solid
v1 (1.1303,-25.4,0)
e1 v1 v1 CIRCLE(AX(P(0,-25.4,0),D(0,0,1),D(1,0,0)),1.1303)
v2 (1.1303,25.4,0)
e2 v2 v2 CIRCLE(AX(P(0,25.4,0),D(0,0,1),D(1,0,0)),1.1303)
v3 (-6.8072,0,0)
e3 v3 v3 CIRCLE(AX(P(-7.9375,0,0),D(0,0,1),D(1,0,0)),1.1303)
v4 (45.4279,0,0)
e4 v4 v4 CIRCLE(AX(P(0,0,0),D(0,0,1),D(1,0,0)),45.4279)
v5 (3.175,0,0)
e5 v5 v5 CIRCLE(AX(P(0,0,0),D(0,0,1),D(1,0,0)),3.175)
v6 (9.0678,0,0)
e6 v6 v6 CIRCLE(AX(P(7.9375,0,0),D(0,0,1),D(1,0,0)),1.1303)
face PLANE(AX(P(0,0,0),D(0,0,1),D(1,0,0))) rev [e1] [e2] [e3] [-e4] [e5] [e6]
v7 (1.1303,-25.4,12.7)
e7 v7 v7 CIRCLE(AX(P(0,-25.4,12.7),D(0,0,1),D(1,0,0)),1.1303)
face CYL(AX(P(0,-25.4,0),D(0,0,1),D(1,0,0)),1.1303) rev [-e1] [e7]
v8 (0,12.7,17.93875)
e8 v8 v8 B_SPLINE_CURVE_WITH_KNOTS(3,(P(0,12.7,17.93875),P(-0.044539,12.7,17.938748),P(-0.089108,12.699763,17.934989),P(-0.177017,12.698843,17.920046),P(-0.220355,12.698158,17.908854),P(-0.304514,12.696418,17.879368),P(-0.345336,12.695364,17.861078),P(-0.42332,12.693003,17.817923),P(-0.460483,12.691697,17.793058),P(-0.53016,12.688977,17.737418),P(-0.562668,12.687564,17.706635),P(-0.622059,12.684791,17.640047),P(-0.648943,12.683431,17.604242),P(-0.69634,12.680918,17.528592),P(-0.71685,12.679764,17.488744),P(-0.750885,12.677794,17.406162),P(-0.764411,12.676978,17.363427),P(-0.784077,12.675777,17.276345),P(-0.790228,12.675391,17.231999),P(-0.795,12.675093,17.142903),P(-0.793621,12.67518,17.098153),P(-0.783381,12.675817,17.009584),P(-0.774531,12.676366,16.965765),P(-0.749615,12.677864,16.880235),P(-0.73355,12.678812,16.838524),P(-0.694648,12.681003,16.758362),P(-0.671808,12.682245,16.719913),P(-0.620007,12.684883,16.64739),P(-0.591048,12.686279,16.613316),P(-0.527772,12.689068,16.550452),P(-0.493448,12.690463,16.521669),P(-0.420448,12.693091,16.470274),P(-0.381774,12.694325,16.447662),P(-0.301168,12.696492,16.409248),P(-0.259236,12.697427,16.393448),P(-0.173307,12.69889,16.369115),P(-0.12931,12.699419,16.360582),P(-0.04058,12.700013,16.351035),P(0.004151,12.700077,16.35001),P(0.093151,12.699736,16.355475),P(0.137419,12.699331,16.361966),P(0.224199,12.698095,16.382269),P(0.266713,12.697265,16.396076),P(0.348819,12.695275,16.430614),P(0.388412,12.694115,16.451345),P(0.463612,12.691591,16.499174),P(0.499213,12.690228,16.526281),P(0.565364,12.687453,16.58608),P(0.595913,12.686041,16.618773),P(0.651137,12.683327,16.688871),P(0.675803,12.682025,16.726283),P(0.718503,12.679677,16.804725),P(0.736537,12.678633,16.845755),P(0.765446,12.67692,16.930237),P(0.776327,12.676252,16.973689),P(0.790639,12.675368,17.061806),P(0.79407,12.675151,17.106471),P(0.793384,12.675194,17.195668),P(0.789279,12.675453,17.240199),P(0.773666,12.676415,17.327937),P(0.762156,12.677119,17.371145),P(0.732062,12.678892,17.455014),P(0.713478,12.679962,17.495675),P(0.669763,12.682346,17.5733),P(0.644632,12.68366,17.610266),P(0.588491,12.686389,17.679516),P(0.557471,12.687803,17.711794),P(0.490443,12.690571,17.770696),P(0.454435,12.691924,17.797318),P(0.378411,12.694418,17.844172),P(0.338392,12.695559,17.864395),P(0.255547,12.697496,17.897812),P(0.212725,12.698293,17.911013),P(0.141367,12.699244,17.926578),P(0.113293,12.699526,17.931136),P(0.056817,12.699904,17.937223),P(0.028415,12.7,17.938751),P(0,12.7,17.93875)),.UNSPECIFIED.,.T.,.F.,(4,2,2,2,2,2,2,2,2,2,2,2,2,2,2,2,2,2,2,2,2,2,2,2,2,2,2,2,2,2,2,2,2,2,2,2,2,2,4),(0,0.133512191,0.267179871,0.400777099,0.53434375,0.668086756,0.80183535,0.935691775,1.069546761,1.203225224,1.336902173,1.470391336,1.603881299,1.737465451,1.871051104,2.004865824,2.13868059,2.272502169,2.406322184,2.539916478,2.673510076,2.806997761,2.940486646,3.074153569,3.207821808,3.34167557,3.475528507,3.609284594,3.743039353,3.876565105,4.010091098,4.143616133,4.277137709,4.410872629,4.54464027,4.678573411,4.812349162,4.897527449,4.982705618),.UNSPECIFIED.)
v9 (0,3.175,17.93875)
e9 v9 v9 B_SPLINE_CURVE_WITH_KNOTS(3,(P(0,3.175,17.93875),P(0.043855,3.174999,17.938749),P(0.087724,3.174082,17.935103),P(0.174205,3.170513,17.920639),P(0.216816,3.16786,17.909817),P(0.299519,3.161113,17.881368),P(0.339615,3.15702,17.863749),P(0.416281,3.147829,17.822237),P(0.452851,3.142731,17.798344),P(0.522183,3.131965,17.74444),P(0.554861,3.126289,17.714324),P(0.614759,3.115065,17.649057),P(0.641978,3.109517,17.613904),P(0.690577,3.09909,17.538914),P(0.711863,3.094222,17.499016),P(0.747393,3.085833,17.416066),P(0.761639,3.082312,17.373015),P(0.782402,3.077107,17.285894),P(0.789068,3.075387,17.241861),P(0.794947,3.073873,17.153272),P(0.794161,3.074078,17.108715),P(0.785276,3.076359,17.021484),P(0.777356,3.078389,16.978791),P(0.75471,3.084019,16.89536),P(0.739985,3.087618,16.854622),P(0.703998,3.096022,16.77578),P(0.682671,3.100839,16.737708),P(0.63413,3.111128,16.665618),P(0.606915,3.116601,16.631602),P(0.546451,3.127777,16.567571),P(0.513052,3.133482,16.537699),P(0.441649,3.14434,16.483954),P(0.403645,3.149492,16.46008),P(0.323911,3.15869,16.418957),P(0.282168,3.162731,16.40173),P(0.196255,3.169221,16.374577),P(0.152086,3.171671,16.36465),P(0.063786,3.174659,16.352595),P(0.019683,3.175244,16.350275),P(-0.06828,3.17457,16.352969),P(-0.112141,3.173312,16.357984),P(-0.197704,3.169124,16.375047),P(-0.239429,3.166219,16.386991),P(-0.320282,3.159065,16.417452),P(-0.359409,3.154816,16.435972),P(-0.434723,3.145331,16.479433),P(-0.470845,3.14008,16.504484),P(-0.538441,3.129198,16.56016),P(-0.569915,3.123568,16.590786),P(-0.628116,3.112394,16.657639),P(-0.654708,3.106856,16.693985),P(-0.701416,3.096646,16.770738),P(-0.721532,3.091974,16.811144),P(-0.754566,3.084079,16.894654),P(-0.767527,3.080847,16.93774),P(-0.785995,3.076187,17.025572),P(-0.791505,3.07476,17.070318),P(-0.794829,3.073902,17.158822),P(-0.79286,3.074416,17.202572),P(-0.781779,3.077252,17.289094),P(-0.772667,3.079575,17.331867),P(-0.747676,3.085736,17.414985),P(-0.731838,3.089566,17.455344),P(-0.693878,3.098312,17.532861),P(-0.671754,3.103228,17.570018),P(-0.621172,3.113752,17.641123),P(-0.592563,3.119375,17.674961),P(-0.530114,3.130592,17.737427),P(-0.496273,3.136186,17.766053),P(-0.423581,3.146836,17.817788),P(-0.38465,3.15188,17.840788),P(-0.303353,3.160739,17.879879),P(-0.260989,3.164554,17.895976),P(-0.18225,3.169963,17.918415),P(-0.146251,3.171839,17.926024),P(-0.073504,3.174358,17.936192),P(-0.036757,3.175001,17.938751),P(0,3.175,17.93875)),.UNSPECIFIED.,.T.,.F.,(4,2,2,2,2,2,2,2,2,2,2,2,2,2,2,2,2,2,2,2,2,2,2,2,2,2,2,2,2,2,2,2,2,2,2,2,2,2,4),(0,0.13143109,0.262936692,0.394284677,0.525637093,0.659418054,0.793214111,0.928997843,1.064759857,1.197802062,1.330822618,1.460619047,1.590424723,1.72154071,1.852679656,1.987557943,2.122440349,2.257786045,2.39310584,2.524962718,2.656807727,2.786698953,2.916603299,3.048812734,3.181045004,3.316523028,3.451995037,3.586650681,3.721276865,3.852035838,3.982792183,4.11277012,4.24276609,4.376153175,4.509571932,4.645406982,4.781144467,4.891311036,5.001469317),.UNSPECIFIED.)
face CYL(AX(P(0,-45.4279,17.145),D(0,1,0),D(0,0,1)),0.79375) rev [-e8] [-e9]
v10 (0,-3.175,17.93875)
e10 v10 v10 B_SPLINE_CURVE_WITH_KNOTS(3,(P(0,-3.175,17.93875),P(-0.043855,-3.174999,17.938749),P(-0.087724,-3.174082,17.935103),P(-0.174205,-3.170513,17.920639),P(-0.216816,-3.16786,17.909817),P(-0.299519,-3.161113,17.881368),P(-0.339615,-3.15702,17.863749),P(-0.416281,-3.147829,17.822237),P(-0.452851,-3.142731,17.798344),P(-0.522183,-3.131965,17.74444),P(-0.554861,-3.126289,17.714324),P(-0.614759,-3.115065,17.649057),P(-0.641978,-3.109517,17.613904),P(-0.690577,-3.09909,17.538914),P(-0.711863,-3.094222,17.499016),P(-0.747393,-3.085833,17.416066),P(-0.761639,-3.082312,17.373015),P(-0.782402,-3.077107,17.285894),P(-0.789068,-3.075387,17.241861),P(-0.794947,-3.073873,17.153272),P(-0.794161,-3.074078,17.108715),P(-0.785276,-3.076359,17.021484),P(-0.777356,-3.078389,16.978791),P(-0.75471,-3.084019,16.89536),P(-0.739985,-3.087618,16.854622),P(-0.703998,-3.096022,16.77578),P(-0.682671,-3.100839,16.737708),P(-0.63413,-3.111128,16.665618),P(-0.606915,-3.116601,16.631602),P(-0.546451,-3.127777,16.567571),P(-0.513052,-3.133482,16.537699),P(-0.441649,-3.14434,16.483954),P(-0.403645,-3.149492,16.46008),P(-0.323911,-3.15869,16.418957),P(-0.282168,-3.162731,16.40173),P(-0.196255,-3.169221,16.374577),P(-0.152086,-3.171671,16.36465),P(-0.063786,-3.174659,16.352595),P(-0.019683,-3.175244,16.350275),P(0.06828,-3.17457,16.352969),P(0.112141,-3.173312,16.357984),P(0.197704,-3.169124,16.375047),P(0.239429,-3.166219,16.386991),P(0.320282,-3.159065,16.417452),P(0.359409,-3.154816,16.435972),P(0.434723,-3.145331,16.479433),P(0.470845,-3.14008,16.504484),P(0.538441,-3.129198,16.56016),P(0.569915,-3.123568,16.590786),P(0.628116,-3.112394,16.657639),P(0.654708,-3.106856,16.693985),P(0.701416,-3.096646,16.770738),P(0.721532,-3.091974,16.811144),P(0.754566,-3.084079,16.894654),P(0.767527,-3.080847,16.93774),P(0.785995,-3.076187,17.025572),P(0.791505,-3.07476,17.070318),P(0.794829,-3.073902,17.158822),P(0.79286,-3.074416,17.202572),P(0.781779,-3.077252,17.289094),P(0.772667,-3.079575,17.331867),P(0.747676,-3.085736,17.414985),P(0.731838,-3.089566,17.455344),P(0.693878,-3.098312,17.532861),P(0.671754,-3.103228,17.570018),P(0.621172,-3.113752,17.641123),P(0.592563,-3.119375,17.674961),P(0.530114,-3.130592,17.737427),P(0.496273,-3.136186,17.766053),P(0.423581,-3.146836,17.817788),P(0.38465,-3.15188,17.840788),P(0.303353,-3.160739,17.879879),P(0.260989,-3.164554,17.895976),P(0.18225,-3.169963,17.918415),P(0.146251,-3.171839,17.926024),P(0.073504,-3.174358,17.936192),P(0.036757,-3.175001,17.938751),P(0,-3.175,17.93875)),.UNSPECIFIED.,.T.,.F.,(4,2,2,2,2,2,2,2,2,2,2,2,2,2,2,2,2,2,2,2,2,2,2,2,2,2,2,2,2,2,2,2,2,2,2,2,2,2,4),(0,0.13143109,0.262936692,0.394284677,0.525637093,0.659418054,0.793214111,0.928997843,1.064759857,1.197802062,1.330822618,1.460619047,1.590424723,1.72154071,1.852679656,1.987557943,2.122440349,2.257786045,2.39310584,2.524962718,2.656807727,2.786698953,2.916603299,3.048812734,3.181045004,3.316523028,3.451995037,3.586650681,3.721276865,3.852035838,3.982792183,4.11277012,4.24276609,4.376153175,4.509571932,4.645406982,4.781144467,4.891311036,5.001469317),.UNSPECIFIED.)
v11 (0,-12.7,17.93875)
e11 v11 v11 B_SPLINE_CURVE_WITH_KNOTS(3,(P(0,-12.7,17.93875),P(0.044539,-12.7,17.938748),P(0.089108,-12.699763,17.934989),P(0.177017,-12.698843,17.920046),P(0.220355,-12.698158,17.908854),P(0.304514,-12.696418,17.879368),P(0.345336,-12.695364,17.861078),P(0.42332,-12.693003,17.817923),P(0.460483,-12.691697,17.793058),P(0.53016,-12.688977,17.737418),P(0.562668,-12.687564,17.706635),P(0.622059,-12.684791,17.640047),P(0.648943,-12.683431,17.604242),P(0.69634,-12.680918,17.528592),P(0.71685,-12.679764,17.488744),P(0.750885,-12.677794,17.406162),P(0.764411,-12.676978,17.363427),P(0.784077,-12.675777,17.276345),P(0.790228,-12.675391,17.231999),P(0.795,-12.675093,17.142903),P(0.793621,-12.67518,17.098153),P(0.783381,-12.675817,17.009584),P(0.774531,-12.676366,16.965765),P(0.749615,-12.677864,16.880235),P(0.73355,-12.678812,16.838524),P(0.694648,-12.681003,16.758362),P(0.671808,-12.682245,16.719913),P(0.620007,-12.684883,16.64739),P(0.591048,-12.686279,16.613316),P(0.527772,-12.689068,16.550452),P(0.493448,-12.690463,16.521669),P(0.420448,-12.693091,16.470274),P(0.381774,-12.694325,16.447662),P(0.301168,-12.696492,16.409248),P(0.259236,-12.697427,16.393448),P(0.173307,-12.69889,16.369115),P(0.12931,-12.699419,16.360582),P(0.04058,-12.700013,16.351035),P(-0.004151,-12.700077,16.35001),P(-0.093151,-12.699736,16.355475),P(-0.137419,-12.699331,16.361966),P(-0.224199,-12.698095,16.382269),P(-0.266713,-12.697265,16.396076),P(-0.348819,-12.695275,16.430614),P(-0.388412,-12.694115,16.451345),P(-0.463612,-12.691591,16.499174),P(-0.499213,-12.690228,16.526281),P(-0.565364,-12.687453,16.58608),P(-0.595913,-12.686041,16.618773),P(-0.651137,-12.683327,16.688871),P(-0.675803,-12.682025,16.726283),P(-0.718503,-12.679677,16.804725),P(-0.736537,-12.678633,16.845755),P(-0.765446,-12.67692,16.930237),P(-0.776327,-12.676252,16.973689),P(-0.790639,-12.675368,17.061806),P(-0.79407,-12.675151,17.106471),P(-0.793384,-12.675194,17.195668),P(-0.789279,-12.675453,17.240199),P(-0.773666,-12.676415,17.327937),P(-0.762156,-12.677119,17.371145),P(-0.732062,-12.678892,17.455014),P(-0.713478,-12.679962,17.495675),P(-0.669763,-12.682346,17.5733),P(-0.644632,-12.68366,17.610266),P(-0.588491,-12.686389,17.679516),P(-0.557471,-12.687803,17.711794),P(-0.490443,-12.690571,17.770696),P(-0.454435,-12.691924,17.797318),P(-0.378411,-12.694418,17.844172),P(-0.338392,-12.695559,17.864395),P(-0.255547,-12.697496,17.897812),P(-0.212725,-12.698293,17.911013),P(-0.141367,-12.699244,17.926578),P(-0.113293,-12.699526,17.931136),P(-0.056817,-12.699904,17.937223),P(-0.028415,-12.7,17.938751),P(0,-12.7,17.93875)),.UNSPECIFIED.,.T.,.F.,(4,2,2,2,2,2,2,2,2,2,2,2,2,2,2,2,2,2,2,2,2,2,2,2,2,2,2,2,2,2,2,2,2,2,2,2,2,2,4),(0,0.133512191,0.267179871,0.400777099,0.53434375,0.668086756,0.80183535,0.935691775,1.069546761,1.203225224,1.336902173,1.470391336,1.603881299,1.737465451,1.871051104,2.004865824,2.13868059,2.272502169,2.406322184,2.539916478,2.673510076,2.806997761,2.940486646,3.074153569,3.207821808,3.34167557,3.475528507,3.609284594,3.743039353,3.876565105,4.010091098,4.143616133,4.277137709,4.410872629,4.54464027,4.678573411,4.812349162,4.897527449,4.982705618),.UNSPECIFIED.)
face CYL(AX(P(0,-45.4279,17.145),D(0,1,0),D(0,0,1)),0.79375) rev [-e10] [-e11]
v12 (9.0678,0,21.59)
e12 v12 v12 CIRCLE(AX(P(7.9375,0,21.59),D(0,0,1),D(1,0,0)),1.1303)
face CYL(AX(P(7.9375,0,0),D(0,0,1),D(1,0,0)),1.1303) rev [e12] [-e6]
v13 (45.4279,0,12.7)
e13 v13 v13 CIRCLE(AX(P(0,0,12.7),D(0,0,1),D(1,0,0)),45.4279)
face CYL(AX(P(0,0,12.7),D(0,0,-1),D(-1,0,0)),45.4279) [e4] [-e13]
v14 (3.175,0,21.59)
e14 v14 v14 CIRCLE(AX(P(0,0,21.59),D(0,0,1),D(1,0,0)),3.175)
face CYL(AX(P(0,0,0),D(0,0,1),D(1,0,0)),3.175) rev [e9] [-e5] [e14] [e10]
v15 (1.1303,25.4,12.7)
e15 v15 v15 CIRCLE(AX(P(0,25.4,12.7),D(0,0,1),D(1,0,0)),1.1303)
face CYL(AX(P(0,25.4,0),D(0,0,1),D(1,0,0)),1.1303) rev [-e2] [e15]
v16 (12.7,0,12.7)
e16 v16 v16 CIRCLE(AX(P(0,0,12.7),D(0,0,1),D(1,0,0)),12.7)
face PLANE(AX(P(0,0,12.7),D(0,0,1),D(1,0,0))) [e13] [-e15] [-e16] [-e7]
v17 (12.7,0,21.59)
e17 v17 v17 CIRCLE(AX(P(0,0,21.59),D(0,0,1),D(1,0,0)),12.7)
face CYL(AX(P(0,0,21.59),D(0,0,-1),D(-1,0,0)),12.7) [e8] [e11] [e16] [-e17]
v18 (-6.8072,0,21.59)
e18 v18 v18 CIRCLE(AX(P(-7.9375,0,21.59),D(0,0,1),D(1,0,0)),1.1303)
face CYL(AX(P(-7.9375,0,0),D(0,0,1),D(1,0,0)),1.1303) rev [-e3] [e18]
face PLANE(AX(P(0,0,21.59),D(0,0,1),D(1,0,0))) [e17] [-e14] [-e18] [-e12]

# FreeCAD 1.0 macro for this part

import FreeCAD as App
import Part
import Sketcher

V = App.Vector
Q = App.Units.Quantity

doc = App.newDocument("Part")
params = doc.addObject("Spreadsheet::Sheet", "Params")
for row, (alias, value) in enumerate([
    ("sketch1_diameter", "3.577 in"),
    ("pad1_length", "0.5 in"),
    ("sketch2_diameter", "1 in"),
    ("pad2_length", "0.35 in"),
    ("sketch3_diameter", "0.25 in"),
    ("sketch3_diameter2", "0.089 in"),
    ("sketch4_diameter", "0.0625 in"),
    ("sketch5_diameter", "0.089 in"),
], start=1):
    params.set(f"A{row}", alias)
    params.set(f"B{row}", "=" + value)
    params.setAlias(f"B{row}", alias)

body = doc.addObject("PartDesign::Body", "Body")

sketch1 = body.newObject("Sketcher::SketchObject", "Sketch")
sketch1.AttachmentSupport = (doc.getObject("XY_Plane"), [""])
sketch1.MapMode = "FlatFace"
sketch1.addGeometry(Part.Circle(V(0, 0, 0), V(0, 0, 1), 45), False)
sketch1.addConstraint([
    Sketcher.Constraint("Coincident", 0, 3, -1, 1),
    Sketcher.Constraint("Diameter", 0, Q("3.577 in")),
])
sketch1.setExpression("Constraints[1]", "Params.sketch1_diameter")
pad1 = body.newObject("PartDesign::Pad", "Pad")
pad1.Profile = sketch1
pad1.setExpression("Length", "Params.pad1_length")

sketch2 = body.newObject("Sketcher::SketchObject", "Sketch001")
sketch2.AttachmentSupport = (doc.getObject("XY_Plane"), [""])
sketch2.MapMode = "FlatFace"
sketch2.AttachmentOffset = App.Placement(V(0, 0, 0.5 * 25.4), App.Rotation())
sketch2.addGeometry(Part.Circle(V(0, 0, 0), V(0, 0, 1), 13), False)
sketch2.addConstraint([
    Sketcher.Constraint("Coincident", 0, 3, -1, 1),
    Sketcher.Constraint("Diameter", 0, Q("1 in")),
])
sketch2.setExpression("Constraints[1]", "Params.sketch2_diameter")
pad2 = body.newObject("PartDesign::Pad", "Pad001")
pad2.Profile = sketch2
pad2.setExpression("Length", "Params.pad2_length")

sketch3 = body.newObject("Sketcher::SketchObject", "Sketch002")
sketch3.AttachmentSupport = (doc.getObject("XY_Plane"), [""])
sketch3.MapMode = "FlatFace"
sketch3.AttachmentOffset = App.Placement(V(0, 0, 0.85 * 25.4), App.Rotation())
sketch3.addGeometry([
    Part.Circle(V(0, 0, 0), V(0, 0, 1), 3.2),
    Part.Circle(V(-7.9, 0, 0), V(0, 0, 1), 1.1),
    Part.Circle(V(7.9, 0, 0), V(0, 0, 1), 1.1),
], False)
sketch3.addConstraint([
    Sketcher.Constraint("Coincident", 0, 3, -1, 1),
    Sketcher.Constraint("Equal", 1, 2),
    Sketcher.Constraint("Symmetric", 1, 3, 2, 3, -1, 1),
    Sketcher.Constraint("PointOnObject", 1, 3, -1),
    Sketcher.Constraint("Diameter", 0, Q("0.25 in")),
    Sketcher.Constraint("Diameter", 1, Q("0.089 in")),
    Sketcher.Constraint("DistanceX", 1, 3, -1, 1, Q("0.3125 in")),
])
sketch3.setExpression("Constraints[4]", "Params.sketch3_diameter")
sketch3.setExpression("Constraints[5]", "Params.sketch3_diameter2")
pocket1 = body.newObject("PartDesign::Pocket", "Pocket")
pocket1.Profile = sketch3
pocket1.Type = "ThroughAll"

sketch4 = body.newObject("Sketcher::SketchObject", "Sketch003")
sketch4.AttachmentSupport = (doc.getObject("XZ_Plane"), [""])
sketch4.MapMode = "FlatFace"
sketch4.addGeometry(Part.Circle(V(0, 17.1, 0), V(0, 0, 1), 0.8), False)
sketch4.addConstraint([
    Sketcher.Constraint("PointOnObject", 0, 3, -2),
    Sketcher.Constraint("Diameter", 0, Q("0.0625 in")),
    Sketcher.Constraint("DistanceY", -1, 1, 0, 3, Q("0.675 in")),
])
sketch4.setExpression("Constraints[1]", "Params.sketch4_diameter")
pocket2 = body.newObject("PartDesign::Pocket", "Pocket001")
pocket2.Profile = sketch4
pocket2.Type = "ThroughAll"
pocket2.Midplane = True

sketch5 = body.newObject("Sketcher::SketchObject", "Sketch004")
sketch5.AttachmentSupport = (doc.getObject("XY_Plane"), [""])
sketch5.MapMode = "FlatFace"
sketch5.AttachmentOffset = App.Placement(V(0, 0, 0.5 * 25.4), App.Rotation())
sketch5.addGeometry([
    Part.Circle(V(0, 25.4, 0), V(0, 0, 1), 1.1),
    Part.Circle(V(0, -25.4, 0), V(0, 0, 1), 1.1),
], False)
sketch5.addConstraint([
    Sketcher.Constraint("Equal", 0, 1),
    Sketcher.Constraint("Symmetric", 0, 3, 1, 3, -1, 1),
    Sketcher.Constraint("PointOnObject", 0, 3, -2),
    Sketcher.Constraint("Diameter", 0, Q("0.089 in")),
    Sketcher.Constraint("DistanceY", -1, 1, 0, 3, Q("1 in")),
])
sketch5.setExpression("Constraints[3]", "Params.sketch5_diameter")
pocket3 = body.newObject("PartDesign::Pocket", "Pocket002")
pocket3.Profile = sketch5
pocket3.Type = "ThroughAll"

doc.recompute()
